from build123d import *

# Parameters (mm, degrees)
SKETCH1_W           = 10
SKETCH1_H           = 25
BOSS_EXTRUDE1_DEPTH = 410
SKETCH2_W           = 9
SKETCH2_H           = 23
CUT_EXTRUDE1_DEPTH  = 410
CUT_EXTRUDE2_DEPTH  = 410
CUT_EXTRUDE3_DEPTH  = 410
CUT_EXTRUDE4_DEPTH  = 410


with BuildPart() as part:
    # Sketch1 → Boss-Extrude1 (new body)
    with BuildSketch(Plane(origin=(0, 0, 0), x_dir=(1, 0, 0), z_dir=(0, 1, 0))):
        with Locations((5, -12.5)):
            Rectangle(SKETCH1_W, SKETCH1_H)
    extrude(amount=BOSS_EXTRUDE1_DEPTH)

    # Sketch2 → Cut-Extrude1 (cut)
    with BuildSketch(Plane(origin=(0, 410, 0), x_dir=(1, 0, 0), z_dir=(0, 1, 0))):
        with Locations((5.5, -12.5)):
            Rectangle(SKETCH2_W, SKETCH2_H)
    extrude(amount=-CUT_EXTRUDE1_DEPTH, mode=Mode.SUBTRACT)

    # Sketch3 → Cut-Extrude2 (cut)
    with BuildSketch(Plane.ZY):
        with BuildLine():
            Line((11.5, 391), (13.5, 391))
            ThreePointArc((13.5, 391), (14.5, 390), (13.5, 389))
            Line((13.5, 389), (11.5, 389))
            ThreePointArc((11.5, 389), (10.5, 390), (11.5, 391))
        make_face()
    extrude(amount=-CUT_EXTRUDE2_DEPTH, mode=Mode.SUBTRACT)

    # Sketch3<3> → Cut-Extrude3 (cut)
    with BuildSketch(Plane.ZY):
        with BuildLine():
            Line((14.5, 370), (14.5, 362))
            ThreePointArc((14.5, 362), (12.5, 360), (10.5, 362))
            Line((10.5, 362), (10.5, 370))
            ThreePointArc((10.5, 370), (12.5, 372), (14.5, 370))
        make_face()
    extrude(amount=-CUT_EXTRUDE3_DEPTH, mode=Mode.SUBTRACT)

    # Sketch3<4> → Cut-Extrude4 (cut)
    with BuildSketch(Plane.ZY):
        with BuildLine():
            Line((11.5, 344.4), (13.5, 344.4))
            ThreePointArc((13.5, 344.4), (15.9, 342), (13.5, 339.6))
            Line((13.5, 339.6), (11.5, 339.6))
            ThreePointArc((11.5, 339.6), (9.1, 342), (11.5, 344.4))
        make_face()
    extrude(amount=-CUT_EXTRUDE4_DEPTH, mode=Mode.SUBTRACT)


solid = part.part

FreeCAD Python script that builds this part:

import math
import FreeCAD as App
import Part
import Sketcher
from FreeCAD import Vector
Q = App.Units.Quantity


def add_polygon(sketch, points):
    """Adds a closed chain of lines whose ends are joined by coincident constraints."""
    first, n = sketch.GeometryCount, len(points)
    for a, b in zip(points, points[1:] + points[:1]):
        sketch.addGeometry(Part.LineSegment(App.Vector(*a, 0), App.Vector(*b, 0)), False)
    for i in range(n):
        sketch.addConstraint(Sketcher.Constraint("Coincident", first + i, 2, first + (i + 1) % n, 1))

doc = App.newDocument("Part")
body = doc.addObject("PartDesign::Body", "Body")

# Sketch on XZ plane
sketch1 = doc.addObject("Sketcher::SketchObject", "Sketch")
body.addObject(sketch1)
sketch1.AttachmentSupport = (doc.XZ_Plane, [""])
sketch1.MapMode = "FlatFace"
add_polygon(sketch1, [(0, 0), (0, 25), (10, 25), (10, 0)])  # lines 0-3
sketch1.addConstraint(Sketcher.Constraint("Vertical", 0))
sketch1.addConstraint(Sketcher.Constraint("Horizontal", 1))
sketch1.addConstraint(Sketcher.Constraint("Vertical", 2))
sketch1.addConstraint(Sketcher.Constraint("Horizontal", 3))
sketch1.addConstraint(Sketcher.Constraint("Coincident", 3, 2, -1, 1))
sketch1.addConstraint(Sketcher.Constraint("DistanceX", 1, 1, 1, 2, Q("10 mm")))
sketch1.addConstraint(Sketcher.Constraint("DistanceY", 0, 1, 0, 2, Q("25 mm")))
pad1 = doc.addObject("PartDesign::Pad", "Pad")
body.addObject(pad1)
pad1.Profile = sketch1
pad1.Length = 410
pad1.Reversed = True

# Sketch on XZ plane
sketch2 = doc.addObject("Sketcher::SketchObject", "Sketch001")
body.addObject(sketch2)
sketch2.AttachmentSupport = (doc.XZ_Plane, [""])
sketch2.MapMode = "FlatFace"
sketch2.AttachmentOffset = App.Placement(Vector(0, 0, -410), App.Rotation())
add_polygon(sketch2, [(1, 1), (1, 24), (10, 24), (10, 1)])  # lines 0-3
sketch2.addConstraint(Sketcher.Constraint("Vertical", 0))
sketch2.addConstraint(Sketcher.Constraint("Horizontal", 1))
sketch2.addConstraint(Sketcher.Constraint("Vertical", 2))
sketch2.addConstraint(Sketcher.Constraint("Horizontal", 3))
sketch2.addConstraint(Sketcher.Constraint("DistanceX", 1, 1, 1, 2, Q("9 mm")))
sketch2.addConstraint(Sketcher.Constraint("DistanceY", 0, 1, 0, 2, Q("23 mm")))
sketch2.addConstraint(Sketcher.Constraint("DistanceX", -1, 1, 0, 2, Q("1 mm")))
sketch2.addConstraint(Sketcher.Constraint("DistanceY", -1, 1, 0, 2, Q("24 mm")))
pocket1 = doc.addObject("PartDesign::Pocket", "Pocket")
body.addObject(pocket1)
pocket1.Profile = sketch2
pocket1.Length = 410
pocket1.Reversed = True

# Sketch on YZ plane
sketch3 = doc.addObject("Sketcher::SketchObject", "Sketch002")
body.addObject(sketch3)
sketch3.AttachmentSupport = (doc.YZ_Plane, [""])
sketch3.MapMode = "FlatFace"
sketch3.addGeometry(Part.LineSegment(Vector(391, 13.5, 0), Vector(391, 11.5, 0)), False)
sketch3.addGeometry(Part.ArcOfCircle(Part.Circle(Vector(390, 11.5, 0), Vector(0, 0, 1), 1), math.radians(180), math.radians(360)), False)
sketch3.addGeometry(Part.LineSegment(Vector(389, 11.5, 0), Vector(389, 13.5, 0)), False)
sketch3.addGeometry(Part.ArcOfCircle(Part.Circle(Vector(390, 13.5, 0), Vector(0, 0, 1), 1), math.radians(0), math.radians(180)), False)
sketch3.addConstraint(Sketcher.Constraint("Tangent", 0, 2, 1, 2))
sketch3.addConstraint(Sketcher.Constraint("Tangent", 1, 1, 2, 1))
sketch3.addConstraint(Sketcher.Constraint("Tangent", 2, 2, 3, 2))
sketch3.addConstraint(Sketcher.Constraint("Tangent", 3, 1, 0, 1))
sketch3.addConstraint(Sketcher.Constraint("Vertical", 0))
sketch3.addConstraint(Sketcher.Constraint("Vertical", 2))
sketch3.addConstraint(Sketcher.Constraint("Radius", 1, Q("1 mm")))
sketch3.addConstraint(Sketcher.Constraint("DistanceY", 0, 2, 0, 1, Q("2 mm")))
sketch3.addConstraint(Sketcher.Constraint("DistanceX", -1, 1, 1, 3, Q("390 mm")))
sketch3.addConstraint(Sketcher.Constraint("DistanceY", -1, 1, 1, 3, Q("11.5 mm")))
pocket2 = doc.addObject("PartDesign::Pocket", "Pocket001")
body.addObject(pocket2)
pocket2.Profile = sketch3
pocket2.Length = 410
pocket2.Reversed = True

# Sketch on YZ plane
sketch4 = doc.addObject("Sketcher::SketchObject", "Sketch003")
body.addObject(sketch4)
sketch4.AttachmentSupport = (doc.YZ_Plane, [""])
sketch4.MapMode = "FlatFace"
sketch4.addGeometry(Part.LineSegment(Vector(362, 14.5, 0), Vector(370, 14.5, 0)), False)
sketch4.addGeometry(Part.ArcOfCircle(Part.Circle(Vector(370, 12.5, 0), Vector(0, 0, 1), 2), math.radians(-90), math.radians(90)), False)
sketch4.addGeometry(Part.LineSegment(Vector(370, 10.5, 0), Vector(362, 10.5, 0)), False)
sketch4.addGeometry(Part.ArcOfCircle(Part.Circle(Vector(362, 12.5, 0), Vector(0, 0, 1), 2), math.radians(90), math.radians(270)), False)
sketch4.addConstraint(Sketcher.Constraint("Tangent", 0, 2, 1, 2))
sketch4.addConstraint(Sketcher.Constraint("Tangent", 1, 1, 2, 1))
sketch4.addConstraint(Sketcher.Constraint("Tangent", 2, 2, 3, 2))
sketch4.addConstraint(Sketcher.Constraint("Tangent", 3, 1, 0, 1))
sketch4.addConstraint(Sketcher.Constraint("Horizontal", 0))
sketch4.addConstraint(Sketcher.Constraint("Horizontal", 2))
sketch4.addConstraint(Sketcher.Constraint("Radius", 1, Q("2 mm")))
sketch4.addConstraint(Sketcher.Constraint("DistanceX", 0, 1, 0, 2, Q("8 mm")))
sketch4.addConstraint(Sketcher.Constraint("DistanceX", -1, 1, 1, 3, Q("370 mm")))
sketch4.addConstraint(Sketcher.Constraint("DistanceY", -1, 1, 1, 3, Q("12.5 mm")))
pocket3 = doc.addObject("PartDesign::Pocket", "Pocket002")
body.addObject(pocket3)
pocket3.Profile = sketch4
pocket3.Length = 410
pocket3.Reversed = True

# Sketch on YZ plane
sketch5 = doc.addObject("Sketcher::SketchObject", "Sketch004")
body.addObject(sketch5)
sketch5.AttachmentSupport = (doc.YZ_Plane, [""])
sketch5.MapMode = "FlatFace"
sketch5.addGeometry(Part.LineSegment(Vector(344.4, 13.5, 0), Vector(344.4, 11.5, 0)), False)
sketch5.addGeometry(Part.ArcOfCircle(Part.Circle(Vector(342, 11.5, 0), Vector(0, 0, 1), 2.4), math.radians(180), math.radians(360)), False)
sketch5.addGeometry(Part.LineSegment(Vector(339.6, 11.5, 0), Vector(339.6, 13.5, 0)), False)
sketch5.addGeometry(Part.ArcOfCircle(Part.Circle(Vector(342, 13.5, 0), Vector(0, 0, 1), 2.4), math.radians(0), math.radians(180)), False)
sketch5.addConstraint(Sketcher.Constraint("Tangent", 0, 2, 1, 2))
sketch5.addConstraint(Sketcher.Constraint("Tangent", 1, 1, 2, 1))
sketch5.addConstraint(Sketcher.Constraint("Tangent", 2, 2, 3, 2))
sketch5.addConstraint(Sketcher.Constraint("Tangent", 3, 1, 0, 1))
sketch5.addConstraint(Sketcher.Constraint("Vertical", 0))
sketch5.addConstraint(Sketcher.Constraint("Vertical", 2))
sketch5.addConstraint(Sketcher.Constraint("Radius", 1, Q("2.4 mm")))
sketch5.addConstraint(Sketcher.Constraint("DistanceY", 0, 2, 0, 1, Q("2 mm")))
sketch5.addConstraint(Sketcher.Constraint("DistanceX", -1, 1, 1, 3, Q("342 mm")))
sketch5.addConstraint(Sketcher.Constraint("DistanceY", -1, 1, 1, 3, Q("11.5 mm")))
pocket4 = doc.addObject("PartDesign::Pocket", "Pocket003")
body.addObject(pocket4)
pocket4.Profile = sketch5
pocket4.Length = 410
pocket4.Reversed = True

doc.recompute()
